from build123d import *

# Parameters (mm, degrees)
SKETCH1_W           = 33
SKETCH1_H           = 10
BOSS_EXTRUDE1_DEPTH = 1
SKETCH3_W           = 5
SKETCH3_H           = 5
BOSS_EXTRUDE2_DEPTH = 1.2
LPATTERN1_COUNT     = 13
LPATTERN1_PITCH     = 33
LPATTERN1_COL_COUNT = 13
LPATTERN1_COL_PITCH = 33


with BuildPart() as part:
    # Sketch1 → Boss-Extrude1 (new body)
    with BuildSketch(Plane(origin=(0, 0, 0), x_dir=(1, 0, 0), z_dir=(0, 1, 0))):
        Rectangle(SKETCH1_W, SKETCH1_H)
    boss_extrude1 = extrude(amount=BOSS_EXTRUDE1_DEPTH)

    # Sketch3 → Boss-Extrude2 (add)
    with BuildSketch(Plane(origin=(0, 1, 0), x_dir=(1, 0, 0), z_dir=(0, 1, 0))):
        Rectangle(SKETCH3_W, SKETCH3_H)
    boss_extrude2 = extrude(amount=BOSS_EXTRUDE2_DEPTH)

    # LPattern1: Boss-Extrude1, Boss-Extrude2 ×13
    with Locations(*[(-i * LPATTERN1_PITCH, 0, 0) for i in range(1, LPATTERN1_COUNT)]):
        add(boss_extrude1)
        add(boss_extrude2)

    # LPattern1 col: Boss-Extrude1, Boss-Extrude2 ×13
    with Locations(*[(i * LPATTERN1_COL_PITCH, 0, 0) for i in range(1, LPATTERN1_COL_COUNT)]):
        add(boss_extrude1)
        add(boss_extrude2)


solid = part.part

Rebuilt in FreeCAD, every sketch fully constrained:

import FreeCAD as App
import Part
import Sketcher

V = App.Vector

doc = App.newDocument("Part")
params = doc.addObject("Spreadsheet::Sheet", "Params")
for row, (alias, value) in enumerate([
    ("sketch1_width", "33 mm"),
    ("sketch1_height", "10 mm"),
    ("pad1_length", "1 mm"),
    ("sketch2_width", "5 mm"),
    ("pad2_length", "1.2 mm"),
    ("linearpattern_pitch", "33 mm"),
    ("linearpattern2_pitch", "33 mm"),
], start=1):
    params.set(f"A{row}", alias)
    params.set(f"B{row}", "=" + value)
    params.setAlias(f"B{row}", alias)

body = doc.addObject("PartDesign::Body", "Body")

# Sketch on XZ plane
sketch1 = body.newObject("Sketcher::SketchObject", "Sketch")
sketch1.AttachmentSupport = (doc.getObject("XZ_Plane"), [""])
sketch1.MapMode = "FlatFace"
sketch1.addGeometry([
    Part.LineSegment(V(-16, -5, 0), V(-16, 5, 0)),
    Part.LineSegment(V(-16, 5, 0), V(16, 5, 0)),
    Part.LineSegment(V(16, 5, 0), V(16, -5, 0)),
    Part.LineSegment(V(16, -5, 0), V(-16, -5, 0)),
], False)
sketch1.addConstraint([
    Sketcher.Constraint("Coincident", 0, 2, 1, 1),
    Sketcher.Constraint("Coincident", 1, 2, 2, 1),
    Sketcher.Constraint("Coincident", 2, 2, 3, 1),
    Sketcher.Constraint("Coincident", 3, 2, 0, 1),
    Sketcher.Constraint("Vertical", 0),
    Sketcher.Constraint("Horizontal", 1),
    Sketcher.Constraint("Vertical", 2),
    Sketcher.Constraint("Horizontal", 3),
    Sketcher.Constraint("Symmetric", 0, 2, 2, 2, -1, 1),
    Sketcher.Constraint("DistanceX", 1, 1, 1, 2, 33.0),
    Sketcher.Constraint("DistanceY", 0, 1, 0, 2, 10.0),
])
sketch1.setExpression("Constraints[9]", "Params.sketch1_width")
sketch1.setExpression("Constraints[10]", "Params.sketch1_height")
pad1 = body.newObject("PartDesign::Pad", "Pad")
pad1.Profile = sketch1
pad1.setExpression("Length", "Params.pad1_length")
pad1.Reversed = True

# Sketch on XZ plane
sketch2 = body.newObject("Sketcher::SketchObject", "Sketch001")
sketch2.AttachmentSupport = (doc.getObject("XZ_Plane"), [""])
sketch2.MapMode = "FlatFace"
sketch2.AttachmentOffset = App.Placement(V(0, 0, -1), App.Rotation())
sketch2.addGeometry([
    Part.LineSegment(V(-2, -2, 0), V(-2, 2, 0)),
    Part.LineSegment(V(-2, 2, 0), V(2, 2, 0)),
    Part.LineSegment(V(2, 2, 0), V(2, -2, 0)),
    Part.LineSegment(V(2, -2, 0), V(-2, -2, 0)),
], False)
sketch2.addConstraint([
    Sketcher.Constraint("Coincident", 0, 2, 1, 1),
    Sketcher.Constraint("Coincident", 1, 2, 2, 1),
    Sketcher.Constraint("Coincident", 2, 2, 3, 1),
    Sketcher.Constraint("Coincident", 3, 2, 0, 1),
    Sketcher.Constraint("Vertical", 0),
    Sketcher.Constraint("Horizontal", 1),
    Sketcher.Constraint("Vertical", 2),
    Sketcher.Constraint("Horizontal", 3),
    Sketcher.Constraint("Symmetric", 0, 2, 2, 2, -1, 1),
    Sketcher.Constraint("Equal", 3, 0),
    Sketcher.Constraint("DistanceX", 1, 1, 1, 2, 5.0),
])
sketch2.setExpression("Constraints[10]", "Params.sketch2_width")
pad2 = body.newObject("PartDesign::Pad", "Pad001")
pad2.Profile = sketch2
pad2.setExpression("Length", "Params.pad2_length")
pad2.Reversed = True
doc.recompute()

linearpattern = body.newObject("PartDesign::LinearPattern", "LinearPattern")
linearpattern.Originals = [pad1, pad2]
linearpattern.Direction = (doc.getObject("X_Axis"), [""])
linearpattern.Mode = "offset"
linearpattern.setExpression("Offset", "Params.linearpattern_pitch")
linearpattern.Occurrences = 13
linearpattern.Reversed = True
body.Tip = linearpattern
doc.recompute()

linearpattern2 = body.newObject("PartDesign::LinearPattern", "LinearPattern001")
linearpattern2.Originals = [pad1, pad2]
linearpattern2.Direction = (doc.getObject("X_Axis"), [""])
linearpattern2.Mode = "offset"
linearpattern2.setExpression("Offset", "Params.linearpattern2_pitch")
linearpattern2.Occurrences = 13
body.Tip = linearpattern2

doc.recompute()
